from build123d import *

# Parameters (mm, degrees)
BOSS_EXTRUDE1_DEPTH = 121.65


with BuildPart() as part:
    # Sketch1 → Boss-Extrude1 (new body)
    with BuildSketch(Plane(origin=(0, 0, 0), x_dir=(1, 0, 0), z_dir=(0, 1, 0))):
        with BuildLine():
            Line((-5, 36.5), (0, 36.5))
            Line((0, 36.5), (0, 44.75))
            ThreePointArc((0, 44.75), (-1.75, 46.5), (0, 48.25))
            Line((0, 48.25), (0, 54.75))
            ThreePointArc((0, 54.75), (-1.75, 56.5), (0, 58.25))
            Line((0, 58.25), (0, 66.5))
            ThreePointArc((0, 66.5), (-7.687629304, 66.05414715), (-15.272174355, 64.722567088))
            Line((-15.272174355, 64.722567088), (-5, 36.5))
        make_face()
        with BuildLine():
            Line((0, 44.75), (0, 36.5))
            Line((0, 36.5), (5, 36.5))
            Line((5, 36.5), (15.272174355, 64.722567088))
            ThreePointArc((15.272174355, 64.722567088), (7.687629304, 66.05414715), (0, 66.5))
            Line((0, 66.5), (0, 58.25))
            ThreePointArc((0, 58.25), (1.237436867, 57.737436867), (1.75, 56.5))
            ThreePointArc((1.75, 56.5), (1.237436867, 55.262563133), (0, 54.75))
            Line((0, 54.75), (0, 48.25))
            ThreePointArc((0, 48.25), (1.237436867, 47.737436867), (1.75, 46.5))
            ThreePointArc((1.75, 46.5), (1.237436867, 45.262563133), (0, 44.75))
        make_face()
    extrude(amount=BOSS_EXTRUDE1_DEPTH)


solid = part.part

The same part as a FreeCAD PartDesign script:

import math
import FreeCAD as App
import Part
import Sketcher

V = App.Vector
Q = App.Units.Quantity

doc = App.newDocument("Part")
body = doc.addObject("PartDesign::Body", "Body")

# Sketch on XZ plane
sketch1 = body.newObject("Sketcher::SketchObject", "Sketch")
sketch1.AttachmentSupport = (doc.getObject("XZ_Plane"), [""])
sketch1.MapMode = "FlatFace"
sketch1.addGeometry([
    Part.LineSegment(V(-5, -36.5, 0), V(5, -36.5, 0)),  # 0
    Part.LineSegment(V(5, -36.5, 0), V(15.272174, -64.722567, 0)),  # 1
    Part.ArcOfCircle(Part.Circle(V(0, 0, 0), V(0, 0, 1), 66.5), math.radians(-90), math.radians(-76.723136)),  # 2
    Part.ArcOfCircle(Part.Circle(V(0, 0, 0), V(0, 0, 1), 66.5), math.radians(-103.276864), math.radians(-90)),  # 3
    Part.LineSegment(V(-15.272174, -64.722567, 0), V(-5, -36.5, 0)),  # 4
    Part.ArcOfCircle(Part.Circle(V(0, -46.5, 0), V(0, 0, 1), 1.75), math.radians(90), math.radians(270)),  # 5
    Part.ArcOfCircle(Part.Circle(V(0, -46.5, 0), V(0, 0, 1), 1.75), math.radians(-90), math.radians(0)),  # 6
    Part.ArcOfCircle(Part.Circle(V(0, -46.5, 0), V(0, 0, 1), 1.75), math.radians(0), math.radians(90)),  # 7
    Part.ArcOfCircle(Part.Circle(V(0, -56.5, 0), V(0, 0, 1), 1.75), math.radians(90), math.radians(270)),  # 8
    Part.ArcOfCircle(Part.Circle(V(0, -56.5, 0), V(0, 0, 1), 1.75), math.radians(-90), math.radians(0)),  # 9
    Part.ArcOfCircle(Part.Circle(V(0, -56.5, 0), V(0, 0, 1), 1.75), math.radians(0), math.radians(90)),  # 10
], False)
sketch1.addConstraint([
    Sketcher.Constraint("Coincident", 0, 2, 1, 1),
    Sketcher.Constraint("Coincident", 1, 2, 2, 2),
    Sketcher.Constraint("Tangent", 2, 1, 3, 2),
    Sketcher.Constraint("Coincident", 3, 1, 4, 1),
    Sketcher.Constraint("Coincident", 4, 2, 0, 1),
    Sketcher.Constraint("Tangent", 5, 2, 6, 1),
    Sketcher.Constraint("Tangent", 6, 2, 7, 1),
    Sketcher.Constraint("Tangent", 7, 2, 5, 1),
    Sketcher.Constraint("Tangent", 8, 2, 9, 1),
    Sketcher.Constraint("Tangent", 9, 2, 10, 1),
    Sketcher.Constraint("Tangent", 10, 2, 8, 1),
    Sketcher.Constraint("Horizontal", 0),
    Sketcher.Constraint("Coincident", 2, 3, -1, 1),
    Sketcher.Constraint("Equal", 2, 3),
    Sketcher.Constraint("Equal", 7, 8),
    Sketcher.Constraint("PointOnObject", 5, 3, -2),
    Sketcher.Constraint("PointOnObject", 8, 3, -2),
    Sketcher.Constraint("PointOnObject", 2, 1, -2),
    Sketcher.Constraint("PointOnObject", 5, 2, -2),
    Sketcher.Constraint("PointOnObject", 7, 2, -2),
    Sketcher.Constraint("PointOnObject", 8, 2, -2),
    Sketcher.Constraint("PointOnObject", 10, 2, -2),
    Sketcher.Constraint("Horizontal", 1, 2, 3, 1),
    Sketcher.Constraint("Horizontal", 7, 3, 6, 2),
    Sketcher.Constraint("Horizontal", 10, 3, 9, 2),
    Sketcher.Constraint("Equal", 1, 4),
    Sketcher.Constraint("Radius", 2, 66.5),
    Sketcher.Constraint("DistanceX", 0, 1, 0, 2, 10.0),
    Sketcher.Constraint("Angle", 1, Q("-70 deg")),
    Sketcher.Constraint("Radius", 5, 1.75),
    Sketcher.Constraint("DistanceY", 8, 3, 5, 3, 10.0),
    Sketcher.Constraint("DistanceY", 5, 3, 0, 2, 10.0),
    Sketcher.Constraint("DistanceY", 2, 1, 8, 3, 10.0),
])
pad1 = body.newObject("PartDesign::Pad", "Pad")
pad1.Profile = sketch1
pad1.Length = 121.65
pad1.Reversed = True

doc.recompute()
